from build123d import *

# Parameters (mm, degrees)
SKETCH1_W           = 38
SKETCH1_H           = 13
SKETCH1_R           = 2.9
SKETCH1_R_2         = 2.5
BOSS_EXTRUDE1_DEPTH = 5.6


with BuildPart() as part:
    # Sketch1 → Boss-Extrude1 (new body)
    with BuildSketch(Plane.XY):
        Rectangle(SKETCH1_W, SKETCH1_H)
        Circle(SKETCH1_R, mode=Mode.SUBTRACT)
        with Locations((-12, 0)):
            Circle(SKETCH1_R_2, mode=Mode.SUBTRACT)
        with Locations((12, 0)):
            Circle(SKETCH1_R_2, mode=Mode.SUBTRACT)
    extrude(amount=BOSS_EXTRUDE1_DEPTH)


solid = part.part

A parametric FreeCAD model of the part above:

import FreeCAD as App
import Part
import Sketcher
from FreeCAD import Vector
Q = App.Units.Quantity


def add_polygon(sketch, points):
    """Adds a closed chain of lines whose ends are joined by coincident constraints."""
    first, n = sketch.GeometryCount, len(points)
    for a, b in zip(points, points[1:] + points[:1]):
        sketch.addGeometry(Part.LineSegment(App.Vector(*a, 0), App.Vector(*b, 0)), False)
    for i in range(n):
        sketch.addConstraint(Sketcher.Constraint("Coincident", first + i, 2, first + (i + 1) % n, 1))

doc = App.newDocument("Part")
params = doc.addObject("Spreadsheet::Sheet", "Params")
for row, (alias, value) in enumerate([
    ("sketch1_diameter", "5 mm"),
    ("sketch1_diameter2", "5.8 mm"),
    ("sketch1_width", "38 mm"),
    ("sketch1_height", "13 mm"),
    ("pad1_length", "5.6 mm"),
], start=1):
    params.set(f"A{row}", alias)
    params.set(f"B{row}", "=" + value)
    params.setAlias(f"B{row}", alias)

body = doc.addObject("PartDesign::Body", "Body")

# Sketch on XY plane
sketch1 = doc.addObject("Sketcher::SketchObject", "Sketch")
body.addObject(sketch1)
sketch1.AttachmentSupport = (doc.XY_Plane, [""])
sketch1.MapMode = "FlatFace"
add_polygon(sketch1, [(-19, 6.5), (-19, -6.5), (19, -6.5), (19, 6.5)])  # lines 0-3
sketch1.addGeometry(Part.Circle(Vector(-12, 0, 0), Vector(0, 0, 1), 2.5), False)  # 4
sketch1.addGeometry(Part.Circle(Vector(0, 0, 0), Vector(0, 0, 1), 2.9), False)  # 5
sketch1.addGeometry(Part.Circle(Vector(12, 0, 0), Vector(0, 0, 1), 2.5), False)  # 6
sketch1.addConstraint([
    Sketcher.Constraint("Vertical", 0),
    Sketcher.Constraint("Horizontal", 1),
    Sketcher.Constraint("Vertical", 2),
    Sketcher.Constraint("Horizontal", 3),
    Sketcher.Constraint("Coincident", 5, 3, -1, 1),
    Sketcher.Constraint("Equal", 4, 6),
    Sketcher.Constraint("Symmetric", 4, 3, 6, 3, -1, 1),
    Sketcher.Constraint("Symmetric", 0, 2, 2, 2, -1, 1),
    Sketcher.Constraint("PointOnObject", 4, 3, -1),
    Sketcher.Constraint("Diameter", 4, Q("5 mm")),
    Sketcher.Constraint("Diameter", 5, Q("5.8 mm")),
    Sketcher.Constraint("DistanceX", 1, 1, 1, 2, Q("38 mm")),
    Sketcher.Constraint("DistanceY", 0, 2, 0, 1, Q("13 mm")),
    Sketcher.Constraint("DistanceX", 4, 3, -1, 1, Q("12 mm")),
])
sketch1.setExpression("Constraints[13]", "Params.sketch1_diameter")
sketch1.setExpression("Constraints[14]", "Params.sketch1_diameter2")
sketch1.setExpression("Constraints[15]", "Params.sketch1_width")
sketch1.setExpression("Constraints[16]", "Params.sketch1_height")
pad1 = doc.addObject("PartDesign::Pad", "Pad")
body.addObject(pad1)
pad1.Profile = sketch1
pad1.setExpression("Length", "Params.pad1_length")

doc.recompute()
